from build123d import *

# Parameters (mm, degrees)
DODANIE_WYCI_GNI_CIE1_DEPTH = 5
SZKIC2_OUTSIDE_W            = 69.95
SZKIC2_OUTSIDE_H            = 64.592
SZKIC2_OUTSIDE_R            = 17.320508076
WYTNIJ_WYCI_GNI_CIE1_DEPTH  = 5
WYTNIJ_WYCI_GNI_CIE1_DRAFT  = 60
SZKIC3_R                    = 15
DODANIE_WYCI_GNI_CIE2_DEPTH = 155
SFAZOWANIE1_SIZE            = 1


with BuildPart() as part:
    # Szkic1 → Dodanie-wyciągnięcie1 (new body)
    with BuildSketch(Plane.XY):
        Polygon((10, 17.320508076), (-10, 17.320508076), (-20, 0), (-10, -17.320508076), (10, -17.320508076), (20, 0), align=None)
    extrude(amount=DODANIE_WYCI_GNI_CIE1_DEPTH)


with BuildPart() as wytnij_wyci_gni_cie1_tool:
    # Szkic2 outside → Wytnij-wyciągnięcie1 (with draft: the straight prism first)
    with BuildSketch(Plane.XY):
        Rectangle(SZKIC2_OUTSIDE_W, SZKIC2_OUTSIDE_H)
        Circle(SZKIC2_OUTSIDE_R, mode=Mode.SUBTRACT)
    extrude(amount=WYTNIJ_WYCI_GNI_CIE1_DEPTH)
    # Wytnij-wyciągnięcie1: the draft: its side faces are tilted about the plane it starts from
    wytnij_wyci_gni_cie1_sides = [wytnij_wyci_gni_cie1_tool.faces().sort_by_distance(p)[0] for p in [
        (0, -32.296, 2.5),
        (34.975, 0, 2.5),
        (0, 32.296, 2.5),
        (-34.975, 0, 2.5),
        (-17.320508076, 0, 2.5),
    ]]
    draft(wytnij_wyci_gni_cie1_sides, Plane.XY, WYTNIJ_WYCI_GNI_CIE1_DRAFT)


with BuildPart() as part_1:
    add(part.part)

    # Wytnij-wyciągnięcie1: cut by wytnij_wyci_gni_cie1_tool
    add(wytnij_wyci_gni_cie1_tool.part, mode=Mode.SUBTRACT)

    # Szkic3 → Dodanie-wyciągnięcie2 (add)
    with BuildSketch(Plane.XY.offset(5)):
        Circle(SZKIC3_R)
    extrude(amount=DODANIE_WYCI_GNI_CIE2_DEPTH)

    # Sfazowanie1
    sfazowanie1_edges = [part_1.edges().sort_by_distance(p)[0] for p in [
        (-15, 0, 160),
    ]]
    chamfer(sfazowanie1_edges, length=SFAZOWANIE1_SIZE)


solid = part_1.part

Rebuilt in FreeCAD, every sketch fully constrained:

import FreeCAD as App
import Part
import Sketcher

V = App.Vector
Q = App.Units.Quantity


def edges_at(feature, points):
    """Names of the edges that pass closest to the given points."""
    edges = feature.Shape.Edges
    near = lambda p: min(range(len(edges)), key=lambda i: edges[i].distToShape(Part.Vertex(*p))[0])
    return sorted({f"Edge{near(p) + 1}" for p in points})


def faces_at(feature, points):
    """Names of the faces that lie closest to the given points."""
    faces = feature.Shape.Faces
    near = lambda p: min(range(len(faces)), key=lambda i: faces[i].distToShape(Part.Vertex(*p))[0])
    return sorted({f"Face{near(p) + 1}" for p in points})


def add_polygon(sketch, points):
    """Adds a closed chain of lines whose ends are joined by coincident constraints."""
    first, n = sketch.GeometryCount, len(points)
    for a, b in zip(points, points[1:] + points[:1]):
        sketch.addGeometry(Part.LineSegment(App.Vector(*a, 0), App.Vector(*b, 0)), False)
    for i in range(n):
        sketch.addConstraint(Sketcher.Constraint("Coincident", first + i, 2, first + (i + 1) % n, 1))

doc = App.newDocument("Part")
body = doc.addObject("PartDesign::Body", "Body")

# Sketch on XY plane
sketch1 = body.newObject("Sketcher::SketchObject", "Sketch")
sketch1.AttachmentSupport = (doc.getObject("XY_Plane"), [""])
sketch1.MapMode = "FlatFace"
add_polygon(sketch1, [(10, 17), (-10, 17), (-20, 0), (-10, -17), (10, -17), (20, 0)])  # lines 0-5
sketch1.addConstraint([
    Sketcher.Constraint("Horizontal", 0),
    Sketcher.Constraint("Horizontal", 3),
    Sketcher.Constraint("Symmetric", 0, 2, 3, 2, -1, 1),
    Sketcher.Constraint("Symmetric", 1, 2, 4, 2, -1, 1),
    Sketcher.Constraint("PointOnObject", 1, 2, -1),
    Sketcher.Constraint("Parallel", 2, 5),
    Sketcher.Constraint("Vertical", 0, 2, 2, 2),
    Sketcher.Constraint("DistanceX", 0, 2, 0, 1, 20.0),
    Sketcher.Constraint("Angle", 1, Q("-120 deg")),
    Sketcher.Constraint("Distance", 1, 20.0),
])
pad1 = body.newObject("PartDesign::Pad", "Pad")
pad1.Profile = sketch1
pad1.Length = 5
body2 = doc.addObject("PartDesign::Body", "Body001")

# Sketch on XY plane
sketch2 = body2.newObject("Sketcher::SketchObject", "Sketch001")
sketch2.AttachmentSupport = (doc.getObject("XY_Plane001"), [""])
sketch2.MapMode = "FlatFace"
add_polygon(sketch2, [(-35, 32), (-35, -32), (35, -32), (35, 32)])  # lines 0-3
sketch2.addGeometry(Part.Circle(V(0, 0, 0), V(0, 0, 1), 17), False)  # 4
sketch2.addConstraint([
    Sketcher.Constraint("Vertical", 0),
    Sketcher.Constraint("Horizontal", 1),
    Sketcher.Constraint("Vertical", 2),
    Sketcher.Constraint("Horizontal", 3),
    Sketcher.Constraint("Coincident", 4, 3, -1, 1),
    Sketcher.Constraint("Symmetric", 0, 2, 2, 2, -1, 1),
    Sketcher.Constraint("DistanceX", 1, 1, 1, 2, 69.95),
    Sketcher.Constraint("DistanceY", 0, 2, 0, 1, 64.592),
    Sketcher.Constraint("Diameter", 4, 34.641016),
])
pad2 = body2.newObject("PartDesign::Pad", "Pad001")
pad2.Profile = sketch2
pad2.Length = 5
doc.recompute()

draft = body2.newObject("PartDesign::Draft", "Draft")
draft.Base = (pad2, faces_at(pad2, [
    (0, -32.296, 2.5),
    (34.975, 0, 2.5),
    (0, 32.296, 2.5),
    (-34.975, 0, 2.5),
    (-17.321, 0, 2.5),
]))
draft.NeutralPlane = (doc.getObject("XY_Plane001"), [""])
draft.Angle = 60
draft.Reversed = False
doc.recompute()

boolean = body.newObject("PartDesign::Boolean", "Boolean")
boolean.Type = "Cut"
boolean.addObjects([body2])

# Sketch on XY plane
sketch3 = body.newObject("Sketcher::SketchObject", "Sketch002")
sketch3.AttachmentSupport = (doc.getObject("XY_Plane"), [""])
sketch3.MapMode = "FlatFace"
sketch3.AttachmentOffset = App.Placement(V(0, 0, 5), App.Rotation())
sketch3.addGeometry(Part.Circle(V(0, 0, 0), V(0, 0, 1), 15), False)
sketch3.addConstraint([
    Sketcher.Constraint("Coincident", 0, 3, -1, 1),
    Sketcher.Constraint("Diameter", 0, 30.0),
])
pad3 = body.newObject("PartDesign::Pad", "Pad002")
pad3.Profile = sketch3
pad3.Length = 155
doc.recompute()

chamfer = body.newObject("PartDesign::Chamfer", "Chamfer")
chamfer.Base = (pad3, edges_at(pad3, [(-15, 0, 160)]))
chamfer.Size = 1

doc.recompute()
